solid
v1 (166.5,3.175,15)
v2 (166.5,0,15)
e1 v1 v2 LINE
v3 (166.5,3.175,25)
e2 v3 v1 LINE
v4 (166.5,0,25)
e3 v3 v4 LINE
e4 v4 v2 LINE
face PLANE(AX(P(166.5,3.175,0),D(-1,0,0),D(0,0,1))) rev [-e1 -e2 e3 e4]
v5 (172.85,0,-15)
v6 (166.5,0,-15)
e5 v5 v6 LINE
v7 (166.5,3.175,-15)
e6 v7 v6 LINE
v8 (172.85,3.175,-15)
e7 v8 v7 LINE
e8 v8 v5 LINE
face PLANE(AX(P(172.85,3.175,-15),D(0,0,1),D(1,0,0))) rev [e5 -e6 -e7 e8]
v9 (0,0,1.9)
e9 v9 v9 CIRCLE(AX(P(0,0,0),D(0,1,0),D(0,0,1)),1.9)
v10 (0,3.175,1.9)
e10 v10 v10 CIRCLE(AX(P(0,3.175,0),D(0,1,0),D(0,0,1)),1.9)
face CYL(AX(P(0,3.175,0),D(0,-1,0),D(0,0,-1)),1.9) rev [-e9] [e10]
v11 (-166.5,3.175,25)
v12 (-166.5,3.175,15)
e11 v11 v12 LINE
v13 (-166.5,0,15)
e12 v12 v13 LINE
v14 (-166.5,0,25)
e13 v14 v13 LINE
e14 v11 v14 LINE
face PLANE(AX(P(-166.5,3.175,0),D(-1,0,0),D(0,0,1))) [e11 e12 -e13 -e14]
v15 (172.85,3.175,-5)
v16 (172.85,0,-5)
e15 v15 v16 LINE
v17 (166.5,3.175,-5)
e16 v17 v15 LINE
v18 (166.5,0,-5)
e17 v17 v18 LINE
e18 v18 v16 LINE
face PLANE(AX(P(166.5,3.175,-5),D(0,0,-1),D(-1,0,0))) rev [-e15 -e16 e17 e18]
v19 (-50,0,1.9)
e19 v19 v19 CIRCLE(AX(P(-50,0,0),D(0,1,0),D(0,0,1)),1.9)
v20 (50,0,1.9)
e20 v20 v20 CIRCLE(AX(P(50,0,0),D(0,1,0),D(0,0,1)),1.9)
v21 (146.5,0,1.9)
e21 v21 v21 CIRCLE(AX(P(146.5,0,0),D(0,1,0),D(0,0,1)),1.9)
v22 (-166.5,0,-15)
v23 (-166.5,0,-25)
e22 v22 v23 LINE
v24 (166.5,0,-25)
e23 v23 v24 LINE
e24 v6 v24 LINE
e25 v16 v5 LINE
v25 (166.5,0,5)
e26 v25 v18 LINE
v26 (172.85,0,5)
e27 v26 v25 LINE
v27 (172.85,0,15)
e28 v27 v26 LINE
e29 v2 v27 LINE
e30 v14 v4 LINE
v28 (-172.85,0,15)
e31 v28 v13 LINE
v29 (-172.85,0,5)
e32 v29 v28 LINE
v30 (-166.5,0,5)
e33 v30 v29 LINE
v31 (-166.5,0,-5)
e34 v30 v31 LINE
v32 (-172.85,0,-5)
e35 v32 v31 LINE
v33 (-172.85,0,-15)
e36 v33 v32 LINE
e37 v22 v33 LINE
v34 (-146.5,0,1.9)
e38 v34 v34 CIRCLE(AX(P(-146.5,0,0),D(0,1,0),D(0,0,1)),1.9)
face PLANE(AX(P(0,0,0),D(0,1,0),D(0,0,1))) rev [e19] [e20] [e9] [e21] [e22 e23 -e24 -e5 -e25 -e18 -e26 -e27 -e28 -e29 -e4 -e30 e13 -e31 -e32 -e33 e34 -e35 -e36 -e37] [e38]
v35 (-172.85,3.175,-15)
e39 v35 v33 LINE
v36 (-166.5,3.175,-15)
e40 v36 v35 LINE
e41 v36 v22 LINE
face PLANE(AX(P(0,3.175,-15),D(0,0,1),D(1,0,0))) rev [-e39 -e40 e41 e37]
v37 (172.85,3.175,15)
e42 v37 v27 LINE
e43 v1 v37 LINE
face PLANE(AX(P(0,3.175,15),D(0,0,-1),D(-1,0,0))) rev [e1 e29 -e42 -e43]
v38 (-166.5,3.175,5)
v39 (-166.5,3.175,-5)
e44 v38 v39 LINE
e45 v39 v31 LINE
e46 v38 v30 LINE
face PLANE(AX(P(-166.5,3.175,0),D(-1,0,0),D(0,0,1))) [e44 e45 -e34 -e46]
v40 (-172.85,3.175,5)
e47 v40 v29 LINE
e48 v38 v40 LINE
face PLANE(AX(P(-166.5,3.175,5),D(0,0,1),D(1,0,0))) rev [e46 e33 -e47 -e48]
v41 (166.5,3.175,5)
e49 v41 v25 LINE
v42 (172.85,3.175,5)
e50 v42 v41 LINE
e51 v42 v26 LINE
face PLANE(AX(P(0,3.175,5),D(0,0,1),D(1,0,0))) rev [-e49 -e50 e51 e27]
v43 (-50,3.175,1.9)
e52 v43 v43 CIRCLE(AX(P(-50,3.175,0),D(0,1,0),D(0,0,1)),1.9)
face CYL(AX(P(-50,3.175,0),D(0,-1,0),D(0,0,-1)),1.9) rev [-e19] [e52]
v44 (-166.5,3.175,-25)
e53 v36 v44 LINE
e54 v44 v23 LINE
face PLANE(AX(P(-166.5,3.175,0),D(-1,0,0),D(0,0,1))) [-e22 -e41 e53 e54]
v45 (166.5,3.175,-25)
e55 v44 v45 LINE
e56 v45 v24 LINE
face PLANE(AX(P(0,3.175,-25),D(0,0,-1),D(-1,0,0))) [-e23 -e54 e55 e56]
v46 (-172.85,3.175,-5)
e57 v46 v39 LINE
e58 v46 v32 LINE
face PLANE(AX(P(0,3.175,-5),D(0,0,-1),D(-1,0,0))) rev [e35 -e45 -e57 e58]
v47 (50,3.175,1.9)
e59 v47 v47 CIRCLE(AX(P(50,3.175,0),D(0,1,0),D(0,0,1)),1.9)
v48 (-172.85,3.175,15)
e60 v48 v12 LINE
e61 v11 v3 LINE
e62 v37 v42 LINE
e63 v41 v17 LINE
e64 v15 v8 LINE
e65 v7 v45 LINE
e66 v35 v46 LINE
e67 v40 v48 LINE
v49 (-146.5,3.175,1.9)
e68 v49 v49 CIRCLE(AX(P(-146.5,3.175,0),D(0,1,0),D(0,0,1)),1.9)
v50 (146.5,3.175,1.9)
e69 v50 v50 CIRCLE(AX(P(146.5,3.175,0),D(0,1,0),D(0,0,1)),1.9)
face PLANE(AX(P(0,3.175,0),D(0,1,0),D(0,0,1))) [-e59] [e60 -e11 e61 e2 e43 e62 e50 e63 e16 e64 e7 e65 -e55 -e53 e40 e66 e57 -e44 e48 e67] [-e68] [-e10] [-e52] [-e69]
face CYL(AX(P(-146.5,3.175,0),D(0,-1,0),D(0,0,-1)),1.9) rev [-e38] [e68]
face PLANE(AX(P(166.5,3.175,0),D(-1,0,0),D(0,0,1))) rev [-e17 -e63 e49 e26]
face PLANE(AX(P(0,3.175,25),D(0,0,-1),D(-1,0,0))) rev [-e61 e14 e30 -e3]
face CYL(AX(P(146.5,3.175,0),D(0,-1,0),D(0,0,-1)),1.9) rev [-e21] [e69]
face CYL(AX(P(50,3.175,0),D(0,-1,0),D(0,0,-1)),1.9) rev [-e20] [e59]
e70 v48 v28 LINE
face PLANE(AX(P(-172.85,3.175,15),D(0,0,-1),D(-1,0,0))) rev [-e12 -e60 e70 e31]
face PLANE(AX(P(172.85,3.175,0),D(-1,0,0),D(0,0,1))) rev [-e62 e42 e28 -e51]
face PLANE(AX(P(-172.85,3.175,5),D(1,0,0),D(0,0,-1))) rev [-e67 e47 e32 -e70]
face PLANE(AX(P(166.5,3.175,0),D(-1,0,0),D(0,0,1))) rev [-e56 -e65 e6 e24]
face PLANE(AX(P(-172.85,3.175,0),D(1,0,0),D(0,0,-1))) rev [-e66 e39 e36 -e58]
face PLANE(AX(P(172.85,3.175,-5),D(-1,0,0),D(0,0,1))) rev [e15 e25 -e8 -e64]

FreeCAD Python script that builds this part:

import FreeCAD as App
import Part
import Sketcher

V = App.Vector


def add_polygon(sketch, points):
    """Adds a closed chain of lines whose ends are joined by coincident constraints."""
    first, n = sketch.GeometryCount, len(points)
    for a, b in zip(points, points[1:] + points[:1]):
        sketch.addGeometry(Part.LineSegment(App.Vector(*a, 0), App.Vector(*b, 0)), False)
    for i in range(n):
        sketch.addConstraint(Sketcher.Constraint("Coincident", first + i, 2, first + (i + 1) % n, 1))

doc = App.newDocument("Part")
body = doc.addObject("PartDesign::Body", "Body")

sketch1 = body.newObject("Sketcher::SketchObject", "Sketch")
sketch1.AttachmentSupport = (doc.getObject("XZ_Plane"), [""])
sketch1.MapMode = "FlatFace"
add_polygon(sketch1, [(-166.5, 15), (-166.5, 25), (166.5, 25), (166.5, 15), (172.8, 15), (172.8, 5), (166.5, 5), (166.5, -5), (172.8, -5), (172.8, -15), (166.5, -15), (166.5, -25), (-166.5, -25), (-166.5, -15), (-172.8, -15), (-172.8, -5), (-166.5, -5), (-166.5, 5), (-172.8, 5), (-172.8, 15)])
sketch1.addGeometry(Part.Circle(V(-146.5, 0, 0), V(0, 0, 1), 1.9), False)
sketch1.addGeometry(Part.Circle(V(-50, 0, 0), V(0, 0, 1), 1.9), False)
sketch1.addGeometry(Part.Circle(V(0, 0, 0), V(0, 0, 1), 1.9), False)
sketch1.addGeometry(Part.Circle(V(50, 0, 0), V(0, 0, 1), 1.9), False)
sketch1.addGeometry(Part.Circle(V(146.5, 0, 0), V(0, 0, 1), 1.9), False)
sketch1.addConstraint(Sketcher.Constraint("Vertical", 0))
sketch1.addConstraint(Sketcher.Constraint("Horizontal", 1))
sketch1.addConstraint(Sketcher.Constraint("Vertical", 2))
sketch1.addConstraint(Sketcher.Constraint("Horizontal", 3))
sketch1.addConstraint(Sketcher.Constraint("Vertical", 4))
sketch1.addConstraint(Sketcher.Constraint("Horizontal", 5))
sketch1.addConstraint(Sketcher.Constraint("Vertical", 6))
sketch1.addConstraint(Sketcher.Constraint("Horizontal", 7))
sketch1.addConstraint(Sketcher.Constraint("Vertical", 8))
sketch1.addConstraint(Sketcher.Constraint("Horizontal", 9))
sketch1.addConstraint(Sketcher.Constraint("Vertical", 10))
sketch1.addConstraint(Sketcher.Constraint("Horizontal", 11))
sketch1.addConstraint(Sketcher.Constraint("Vertical", 12))
sketch1.addConstraint(Sketcher.Constraint("Horizontal", 13))
sketch1.addConstraint(Sketcher.Constraint("Vertical", 14))
sketch1.addConstraint(Sketcher.Constraint("Horizontal", 15))
sketch1.addConstraint(Sketcher.Constraint("Vertical", 16))
sketch1.addConstraint(Sketcher.Constraint("Horizontal", 17))
sketch1.addConstraint(Sketcher.Constraint("Vertical", 18))
sketch1.addConstraint(Sketcher.Constraint("Horizontal", 19))
sketch1.addConstraint(Sketcher.Constraint("Coincident", 22, 3, -1, 1))
sketch1.addConstraint(Sketcher.Constraint("Equal", 20, 21))
sketch1.addConstraint(Sketcher.Constraint("Equal", 21, 22))
sketch1.addConstraint(Sketcher.Constraint("Equal", 22, 23))
sketch1.addConstraint(Sketcher.Constraint("Equal", 23, 24))
sketch1.addConstraint(Sketcher.Constraint("Symmetric", 21, 3, 23, 3, -1, 1))
sketch1.addConstraint(Sketcher.Constraint("Symmetric", 20, 3, 24, 3, -1, 1))
sketch1.addConstraint(Sketcher.Constraint("Symmetric", 0, 2, 10, 2, -1, 1))
sketch1.addConstraint(Sketcher.Constraint("Symmetric", 2, 2, 12, 2, -1, 1))
sketch1.addConstraint(Sketcher.Constraint("Symmetric", 4, 2, 14, 2, -1, 1))
sketch1.addConstraint(Sketcher.Constraint("Symmetric", 6, 2, 16, 2, -1, 1))
sketch1.addConstraint(Sketcher.Constraint("Symmetric", 8, 2, 18, 2, -1, 1))
sketch1.addConstraint(Sketcher.Constraint("Symmetric", 9, 2, 12, 2, -2))
sketch1.addConstraint(Sketcher.Constraint("Symmetric", 7, 2, 14, 2, -2))
sketch1.addConstraint(Sketcher.Constraint("PointOnObject", 20, 3, -1))
sketch1.addConstraint(Sketcher.Constraint("PointOnObject", 21, 3, -1))
sketch1.addConstraint(Sketcher.Constraint("Vertical", 2, 2, 5, 2))
sketch1.addConstraint(Sketcher.Constraint("Equal", 2, 4))
sketch1.addConstraint(Sketcher.Constraint("Equal", 4, 6))
sketch1.addConstraint(Sketcher.Constraint("Diameter", 20, 3.8))
sketch1.addConstraint(Sketcher.Constraint("DistanceX", 1, 1, 1, 2, 333.0))
sketch1.addConstraint(Sketcher.Constraint("DistanceY", 0, 1, 0, 2, 10.0))
sketch1.addConstraint(Sketcher.Constraint("DistanceX", 21, 3, -1, 1, 50.0))
sketch1.addConstraint(Sketcher.Constraint("DistanceX", 20, 3, 24, 3, 293.0))
sketch1.addConstraint(Sketcher.Constraint("DistanceX", 3, 1, 3, 2, 6.35))
pad1 = body.newObject("PartDesign::Pad", "Pad")
pad1.Profile = sketch1
pad1.Length = 3.175
pad1.Reversed = True

doc.recompute()
